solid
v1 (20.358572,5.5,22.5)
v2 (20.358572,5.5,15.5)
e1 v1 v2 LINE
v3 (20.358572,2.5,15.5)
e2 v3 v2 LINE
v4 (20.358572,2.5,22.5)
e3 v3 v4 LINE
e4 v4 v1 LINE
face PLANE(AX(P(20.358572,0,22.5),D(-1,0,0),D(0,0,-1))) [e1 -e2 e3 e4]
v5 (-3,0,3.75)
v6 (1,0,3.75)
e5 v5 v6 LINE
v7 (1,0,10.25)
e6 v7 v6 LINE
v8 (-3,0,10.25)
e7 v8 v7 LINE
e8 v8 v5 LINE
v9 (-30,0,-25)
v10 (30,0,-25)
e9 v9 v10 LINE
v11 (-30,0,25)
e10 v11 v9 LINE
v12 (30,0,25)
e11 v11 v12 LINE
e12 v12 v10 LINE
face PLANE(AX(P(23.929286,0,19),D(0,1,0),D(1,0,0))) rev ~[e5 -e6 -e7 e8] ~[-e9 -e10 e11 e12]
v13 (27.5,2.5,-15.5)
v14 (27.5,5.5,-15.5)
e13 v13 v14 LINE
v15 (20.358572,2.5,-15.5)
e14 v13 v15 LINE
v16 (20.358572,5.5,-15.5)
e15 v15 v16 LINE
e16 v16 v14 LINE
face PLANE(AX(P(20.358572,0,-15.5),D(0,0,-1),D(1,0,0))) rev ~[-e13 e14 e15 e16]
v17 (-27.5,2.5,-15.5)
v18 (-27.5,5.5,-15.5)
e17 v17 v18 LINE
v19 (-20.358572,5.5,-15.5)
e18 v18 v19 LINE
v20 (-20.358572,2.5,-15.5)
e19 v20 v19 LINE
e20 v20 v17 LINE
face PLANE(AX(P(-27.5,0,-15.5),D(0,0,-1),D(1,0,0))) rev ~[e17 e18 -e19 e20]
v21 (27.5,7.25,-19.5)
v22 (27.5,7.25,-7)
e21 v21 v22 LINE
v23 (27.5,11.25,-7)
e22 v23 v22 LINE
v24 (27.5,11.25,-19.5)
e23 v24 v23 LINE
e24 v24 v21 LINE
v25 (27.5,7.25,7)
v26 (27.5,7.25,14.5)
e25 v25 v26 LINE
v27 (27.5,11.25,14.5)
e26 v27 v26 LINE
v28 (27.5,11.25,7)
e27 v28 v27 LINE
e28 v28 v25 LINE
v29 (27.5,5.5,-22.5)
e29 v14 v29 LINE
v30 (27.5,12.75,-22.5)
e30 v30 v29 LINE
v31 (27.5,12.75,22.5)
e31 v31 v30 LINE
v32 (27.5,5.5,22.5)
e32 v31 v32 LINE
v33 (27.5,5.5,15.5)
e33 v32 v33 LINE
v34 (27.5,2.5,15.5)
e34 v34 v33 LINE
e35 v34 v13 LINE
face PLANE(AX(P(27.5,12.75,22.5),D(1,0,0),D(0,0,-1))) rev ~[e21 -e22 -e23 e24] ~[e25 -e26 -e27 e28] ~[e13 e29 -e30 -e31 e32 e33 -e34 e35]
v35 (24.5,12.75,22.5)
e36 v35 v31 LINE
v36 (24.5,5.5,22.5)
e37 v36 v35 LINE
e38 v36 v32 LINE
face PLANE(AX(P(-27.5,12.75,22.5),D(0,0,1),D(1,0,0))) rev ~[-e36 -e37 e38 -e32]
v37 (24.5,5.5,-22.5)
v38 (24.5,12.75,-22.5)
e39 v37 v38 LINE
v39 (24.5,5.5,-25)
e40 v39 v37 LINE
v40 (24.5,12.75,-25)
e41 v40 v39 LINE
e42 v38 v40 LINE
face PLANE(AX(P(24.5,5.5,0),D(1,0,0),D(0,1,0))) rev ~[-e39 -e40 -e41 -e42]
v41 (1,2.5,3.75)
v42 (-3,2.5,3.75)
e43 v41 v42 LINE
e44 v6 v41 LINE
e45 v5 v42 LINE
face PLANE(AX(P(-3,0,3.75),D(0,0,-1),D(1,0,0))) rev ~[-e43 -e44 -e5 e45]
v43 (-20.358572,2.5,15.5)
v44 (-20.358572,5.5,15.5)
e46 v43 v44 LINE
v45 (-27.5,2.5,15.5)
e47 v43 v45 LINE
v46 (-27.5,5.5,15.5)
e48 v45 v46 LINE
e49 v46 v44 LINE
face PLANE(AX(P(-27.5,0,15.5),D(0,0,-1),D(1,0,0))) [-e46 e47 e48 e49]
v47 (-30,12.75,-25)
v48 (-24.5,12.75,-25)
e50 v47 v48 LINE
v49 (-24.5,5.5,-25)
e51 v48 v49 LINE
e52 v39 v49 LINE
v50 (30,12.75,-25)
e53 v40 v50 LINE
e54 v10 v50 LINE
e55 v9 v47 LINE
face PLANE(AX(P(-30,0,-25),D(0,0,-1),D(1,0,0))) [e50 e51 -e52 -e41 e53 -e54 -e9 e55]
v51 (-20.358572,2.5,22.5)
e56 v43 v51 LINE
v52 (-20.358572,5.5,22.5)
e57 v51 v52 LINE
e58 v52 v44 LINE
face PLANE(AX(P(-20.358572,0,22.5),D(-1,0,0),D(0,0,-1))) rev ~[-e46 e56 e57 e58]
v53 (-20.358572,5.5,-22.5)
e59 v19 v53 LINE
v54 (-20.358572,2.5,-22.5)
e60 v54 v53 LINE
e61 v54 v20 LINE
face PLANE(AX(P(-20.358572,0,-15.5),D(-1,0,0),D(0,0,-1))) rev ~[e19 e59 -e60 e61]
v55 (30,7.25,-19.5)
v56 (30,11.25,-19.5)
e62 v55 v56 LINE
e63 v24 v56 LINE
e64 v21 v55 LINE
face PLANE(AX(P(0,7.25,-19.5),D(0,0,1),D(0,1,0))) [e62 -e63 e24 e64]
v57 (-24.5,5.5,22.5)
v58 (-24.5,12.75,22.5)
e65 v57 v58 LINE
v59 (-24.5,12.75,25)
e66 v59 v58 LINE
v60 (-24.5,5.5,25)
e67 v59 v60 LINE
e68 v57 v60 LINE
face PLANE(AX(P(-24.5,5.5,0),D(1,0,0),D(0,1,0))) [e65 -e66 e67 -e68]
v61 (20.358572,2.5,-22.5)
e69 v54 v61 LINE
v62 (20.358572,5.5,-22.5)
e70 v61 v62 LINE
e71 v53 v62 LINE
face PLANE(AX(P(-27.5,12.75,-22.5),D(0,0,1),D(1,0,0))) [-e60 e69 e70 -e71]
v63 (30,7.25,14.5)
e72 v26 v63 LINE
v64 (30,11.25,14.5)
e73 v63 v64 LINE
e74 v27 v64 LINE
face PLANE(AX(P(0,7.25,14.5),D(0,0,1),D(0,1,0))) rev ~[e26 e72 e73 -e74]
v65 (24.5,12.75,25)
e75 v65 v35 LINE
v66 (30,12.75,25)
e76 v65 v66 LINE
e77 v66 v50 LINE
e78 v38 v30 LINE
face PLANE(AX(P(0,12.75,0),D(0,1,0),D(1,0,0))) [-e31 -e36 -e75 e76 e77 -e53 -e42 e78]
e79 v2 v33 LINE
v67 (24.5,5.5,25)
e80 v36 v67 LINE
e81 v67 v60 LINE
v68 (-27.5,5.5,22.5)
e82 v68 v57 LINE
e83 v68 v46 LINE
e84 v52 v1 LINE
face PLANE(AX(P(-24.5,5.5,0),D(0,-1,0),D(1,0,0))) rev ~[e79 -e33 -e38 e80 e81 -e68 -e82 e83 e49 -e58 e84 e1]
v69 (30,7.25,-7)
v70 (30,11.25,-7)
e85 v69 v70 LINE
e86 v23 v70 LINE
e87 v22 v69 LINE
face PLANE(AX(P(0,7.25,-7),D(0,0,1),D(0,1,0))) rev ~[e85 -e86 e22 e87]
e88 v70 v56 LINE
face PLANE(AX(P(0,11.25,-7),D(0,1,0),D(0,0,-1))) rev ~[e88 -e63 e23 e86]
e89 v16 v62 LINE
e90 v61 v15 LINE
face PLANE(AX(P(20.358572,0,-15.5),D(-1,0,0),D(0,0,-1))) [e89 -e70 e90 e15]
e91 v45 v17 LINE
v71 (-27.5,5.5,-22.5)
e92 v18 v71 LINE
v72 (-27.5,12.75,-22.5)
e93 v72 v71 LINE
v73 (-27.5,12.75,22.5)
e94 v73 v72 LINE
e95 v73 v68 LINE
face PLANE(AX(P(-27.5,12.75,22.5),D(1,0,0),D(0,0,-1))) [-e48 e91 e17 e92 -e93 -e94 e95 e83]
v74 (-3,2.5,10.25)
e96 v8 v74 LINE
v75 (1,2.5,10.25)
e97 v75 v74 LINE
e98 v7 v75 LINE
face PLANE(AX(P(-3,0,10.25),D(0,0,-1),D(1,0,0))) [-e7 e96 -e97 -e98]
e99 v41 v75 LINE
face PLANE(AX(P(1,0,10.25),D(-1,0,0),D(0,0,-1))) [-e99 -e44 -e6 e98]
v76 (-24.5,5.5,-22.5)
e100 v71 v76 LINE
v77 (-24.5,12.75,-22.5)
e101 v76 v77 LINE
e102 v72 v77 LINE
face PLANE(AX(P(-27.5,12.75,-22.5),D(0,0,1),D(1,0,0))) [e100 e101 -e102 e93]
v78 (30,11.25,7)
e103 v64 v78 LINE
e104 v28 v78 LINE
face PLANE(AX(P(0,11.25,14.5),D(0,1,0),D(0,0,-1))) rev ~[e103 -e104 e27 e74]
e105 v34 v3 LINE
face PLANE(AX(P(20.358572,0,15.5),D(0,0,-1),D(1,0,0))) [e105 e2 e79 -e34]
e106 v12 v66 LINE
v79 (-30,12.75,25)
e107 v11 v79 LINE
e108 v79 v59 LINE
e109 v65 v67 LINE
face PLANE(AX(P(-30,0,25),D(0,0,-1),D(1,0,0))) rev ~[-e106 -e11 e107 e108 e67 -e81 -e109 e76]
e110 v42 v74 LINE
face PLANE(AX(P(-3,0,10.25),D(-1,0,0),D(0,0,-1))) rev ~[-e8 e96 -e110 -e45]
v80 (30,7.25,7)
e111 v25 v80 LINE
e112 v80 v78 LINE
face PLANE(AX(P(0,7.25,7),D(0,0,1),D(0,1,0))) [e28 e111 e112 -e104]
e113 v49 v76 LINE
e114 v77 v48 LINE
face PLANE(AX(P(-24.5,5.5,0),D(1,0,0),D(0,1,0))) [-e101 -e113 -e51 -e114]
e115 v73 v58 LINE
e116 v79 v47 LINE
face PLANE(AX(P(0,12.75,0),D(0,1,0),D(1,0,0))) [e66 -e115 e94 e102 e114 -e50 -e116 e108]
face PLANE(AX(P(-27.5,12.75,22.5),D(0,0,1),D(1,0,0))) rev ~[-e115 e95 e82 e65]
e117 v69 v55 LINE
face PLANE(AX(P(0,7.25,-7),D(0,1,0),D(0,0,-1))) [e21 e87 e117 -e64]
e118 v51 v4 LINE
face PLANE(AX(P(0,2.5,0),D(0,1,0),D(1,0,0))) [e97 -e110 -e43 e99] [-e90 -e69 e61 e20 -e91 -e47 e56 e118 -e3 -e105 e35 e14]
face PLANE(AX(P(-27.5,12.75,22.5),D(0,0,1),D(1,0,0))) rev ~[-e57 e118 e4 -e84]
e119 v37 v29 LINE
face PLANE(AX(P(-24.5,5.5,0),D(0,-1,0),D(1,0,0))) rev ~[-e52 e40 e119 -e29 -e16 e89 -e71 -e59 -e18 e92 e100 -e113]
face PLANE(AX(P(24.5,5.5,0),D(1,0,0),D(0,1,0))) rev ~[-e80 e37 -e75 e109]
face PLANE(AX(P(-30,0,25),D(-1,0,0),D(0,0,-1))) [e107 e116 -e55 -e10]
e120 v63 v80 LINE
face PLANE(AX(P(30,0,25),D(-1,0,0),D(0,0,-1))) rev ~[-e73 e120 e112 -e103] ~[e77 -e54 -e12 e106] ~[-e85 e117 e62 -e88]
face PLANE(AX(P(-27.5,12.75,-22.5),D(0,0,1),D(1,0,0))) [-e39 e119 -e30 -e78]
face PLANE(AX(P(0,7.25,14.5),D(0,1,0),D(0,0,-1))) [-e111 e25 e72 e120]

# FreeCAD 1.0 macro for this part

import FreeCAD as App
import Part
import Sketcher
from FreeCAD import Vector
Q = App.Units.Quantity

doc = App.newDocument("Part")
params = doc.addObject("Spreadsheet::Sheet", "Params")
for row, (alias, value) in enumerate([
    ("sketch1_width", "60 mm"),
    ("sketch1_height", "50 mm"),
    ("pad1_length", "12.75 mm"),
    ("sketch2_width", "55 mm"),
    ("sketch2_height", "45 mm"),
    ("pocket1_length", "10.25 mm"),
    ("sketch3_width", "4 mm"),
    ("sketch3_height", "6.5 mm"),
    ("pocket2_length", "10.25 mm"),
    ("sketch4_width", "49 mm"),
    ("sketch4_height", "7.25 mm"),
    ("pocket3_length", "90.25 mm"),
    ("sketch5_width", "4 mm"),
    ("sketch5_height", "7.5 mm"),
    ("sketch5_height2", "12.5 mm"),
    ("pocket4_length", "60 mm"),
    ("sketch6_height", "7 mm"),
    ("pad2_length", "5.5 mm"),
], start=1):
    params.set(f"A{row}", alias)
    params.set(f"B{row}", "=" + value)
    params.setAlias(f"B{row}", alias)

body = doc.addObject("PartDesign::Body", "Body")

# Sketch on XZ plane
sketch1 = body.newObject("Sketcher::SketchObject", "Sketch")
sketch1.AttachmentSupport = (doc.getObject("XZ_Plane"), [""])
sketch1.MapMode = "FlatFace"
sketch1.addGeometry(Part.LineSegment(Vector(-30, -25, 0), Vector(-30, 25, 0)), False)
sketch1.addGeometry(Part.LineSegment(Vector(-30, 25, 0), Vector(30, 25, 0)), False)
sketch1.addGeometry(Part.LineSegment(Vector(30, 25, 0), Vector(30, -25, 0)), False)
sketch1.addGeometry(Part.LineSegment(Vector(30, -25, 0), Vector(-30, -25, 0)), False)
sketch1.addConstraint(Sketcher.Constraint("Coincident", 0, 2, 1, 1))
sketch1.addConstraint(Sketcher.Constraint("Coincident", 1, 2, 2, 1))
sketch1.addConstraint(Sketcher.Constraint("Coincident", 2, 2, 3, 1))
sketch1.addConstraint(Sketcher.Constraint("Coincident", 3, 2, 0, 1))
sketch1.addConstraint(Sketcher.Constraint("Vertical", 0))
sketch1.addConstraint(Sketcher.Constraint("Horizontal", 1))
sketch1.addConstraint(Sketcher.Constraint("Vertical", 2))
sketch1.addConstraint(Sketcher.Constraint("Horizontal", 3))
sketch1.addConstraint(Sketcher.Constraint("Symmetric", 0, 2, 2, 2, -1, 1))
sketch1.addConstraint(Sketcher.Constraint("DistanceX", 1, 1, 1, 2, Q("60 mm")))
sketch1.addConstraint(Sketcher.Constraint("DistanceY", 0, 1, 0, 2, Q("50 mm")))
sketch1.setExpression("Constraints[9]", "Params.sketch1_width")
sketch1.setExpression("Constraints[10]", "Params.sketch1_height")
pad1 = body.newObject("PartDesign::Pad", "Pad")
pad1.Profile = sketch1
pad1.setExpression("Length", "Params.pad1_length")
pad1.Reversed = True

# Sketch on XZ plane
sketch2 = body.newObject("Sketcher::SketchObject", "Sketch001")
sketch2.AttachmentSupport = (doc.getObject("XZ_Plane"), [""])
sketch2.MapMode = "FlatFace"
sketch2.AttachmentOffset = App.Placement(Vector(0, 0, -12.75), App.Rotation())
sketch2.addGeometry(Part.LineSegment(Vector(-27.5, -22.5, 0), Vector(-27.5, 22.5, 0)), False)
sketch2.addGeometry(Part.LineSegment(Vector(-27.5, 22.5, 0), Vector(27.5, 22.5, 0)), False)
sketch2.addGeometry(Part.LineSegment(Vector(27.5, 22.5, 0), Vector(27.5, -22.5, 0)), False)
sketch2.addGeometry(Part.LineSegment(Vector(27.5, -22.5, 0), Vector(-27.5, -22.5, 0)), False)
sketch2.addConstraint(Sketcher.Constraint("Coincident", 0, 2, 1, 1))
sketch2.addConstraint(Sketcher.Constraint("Coincident", 1, 2, 2, 1))
sketch2.addConstraint(Sketcher.Constraint("Coincident", 2, 2, 3, 1))
sketch2.addConstraint(Sketcher.Constraint("Coincident", 3, 2, 0, 1))
sketch2.addConstraint(Sketcher.Constraint("Vertical", 0))
sketch2.addConstraint(Sketcher.Constraint("Horizontal", 1))
sketch2.addConstraint(Sketcher.Constraint("Vertical", 2))
sketch2.addConstraint(Sketcher.Constraint("Horizontal", 3))
sketch2.addConstraint(Sketcher.Constraint("Symmetric", 0, 2, 2, 2, -1, 1))
sketch2.addConstraint(Sketcher.Constraint("DistanceX", 1, 1, 1, 2, Q("55 mm")))
sketch2.addConstraint(Sketcher.Constraint("DistanceY", 0, 1, 0, 2, Q("45 mm")))
sketch2.setExpression("Constraints[9]", "Params.sketch2_width")
sketch2.setExpression("Constraints[10]", "Params.sketch2_height")
pocket1 = body.newObject("PartDesign::Pocket", "Pocket")
pocket1.Profile = sketch2
pocket1.setExpression("Length", "Params.pocket1_length")
pocket1.Reversed = True

# Sketch on XZ plane
sketch3 = body.newObject("Sketcher::SketchObject", "Sketch002")
sketch3.AttachmentSupport = (doc.getObject("XZ_Plane"), [""])
sketch3.MapMode = "FlatFace"
sketch3.addGeometry(Part.LineSegment(Vector(-3, 3.75, 0), Vector(-3, 10.25, 0)), False)
sketch3.addGeometry(Part.LineSegment(Vector(-3, 10.25, 0), Vector(1, 10.25, 0)), False)
sketch3.addGeometry(Part.LineSegment(Vector(1, 10.25, 0), Vector(1, 3.75, 0)), False)
sketch3.addGeometry(Part.LineSegment(Vector(1, 3.75, 0), Vector(-3, 3.75, 0)), False)
sketch3.addConstraint(Sketcher.Constraint("Coincident", 0, 2, 1, 1))
sketch3.addConstraint(Sketcher.Constraint("Coincident", 1, 2, 2, 1))
sketch3.addConstraint(Sketcher.Constraint("Coincident", 2, 2, 3, 1))
sketch3.addConstraint(Sketcher.Constraint("Coincident", 3, 2, 0, 1))
sketch3.addConstraint(Sketcher.Constraint("Vertical", 0))
sketch3.addConstraint(Sketcher.Constraint("Horizontal", 1))
sketch3.addConstraint(Sketcher.Constraint("Vertical", 2))
sketch3.addConstraint(Sketcher.Constraint("Horizontal", 3))
sketch3.addConstraint(Sketcher.Constraint("DistanceX", 1, 1, 1, 2, Q("4 mm")))
sketch3.addConstraint(Sketcher.Constraint("DistanceY", 0, 1, 0, 2, Q("6.5 mm")))
sketch3.addConstraint(Sketcher.Constraint("DistanceX", 0, 2, -1, 1, Q("3 mm")))
sketch3.addConstraint(Sketcher.Constraint("DistanceY", -1, 1, 0, 2, Q("10.25 mm")))
sketch3.setExpression("Constraints[8]", "Params.sketch3_width")
sketch3.setExpression("Constraints[9]", "Params.sketch3_height")
pocket2 = body.newObject("PartDesign::Pocket", "Pocket001")
pocket2.Profile = sketch3
pocket2.setExpression("Length", "Params.pocket2_length")

# Sketch on XY plane
sketch4 = body.newObject("Sketcher::SketchObject", "Sketch003")
sketch4.AttachmentSupport = (doc.getObject("XY_Plane"), [""])
sketch4.MapMode = "FlatFace"
sketch4.addGeometry(Part.LineSegment(Vector(-24.5, 12.75, 0), Vector(-24.5, 5.5, 0)), False)
sketch4.addGeometry(Part.LineSegment(Vector(-24.5, 5.5, 0), Vector(24.5, 5.5, 0)), False)
sketch4.addGeometry(Part.LineSegment(Vector(24.5, 5.5, 0), Vector(24.5, 12.75, 0)), False)
sketch4.addGeometry(Part.LineSegment(Vector(24.5, 12.75, 0), Vector(-24.5, 12.75, 0)), False)
sketch4.addConstraint(Sketcher.Constraint("Coincident", 0, 2, 1, 1))
sketch4.addConstraint(Sketcher.Constraint("Coincident", 1, 2, 2, 1))
sketch4.addConstraint(Sketcher.Constraint("Coincident", 2, 2, 3, 1))
sketch4.addConstraint(Sketcher.Constraint("Coincident", 3, 2, 0, 1))
sketch4.addConstraint(Sketcher.Constraint("Vertical", 0))
sketch4.addConstraint(Sketcher.Constraint("Horizontal", 1))
sketch4.addConstraint(Sketcher.Constraint("Vertical", 2))
sketch4.addConstraint(Sketcher.Constraint("Horizontal", 3))
sketch4.addConstraint(Sketcher.Constraint("DistanceX", 1, 1, 1, 2, Q("49 mm")))
sketch4.addConstraint(Sketcher.Constraint("DistanceY", 0, 2, 0, 1, Q("7.25 mm")))
sketch4.addConstraint(Sketcher.Constraint("DistanceX", 0, 2, -1, 1, Q("24.5 mm")))
sketch4.addConstraint(Sketcher.Constraint("DistanceY", -1, 1, 0, 2, Q("5.5 mm")))
sketch4.setExpression("Constraints[8]", "Params.sketch4_width")
sketch4.setExpression("Constraints[9]", "Params.sketch4_height")
pocket3 = body.newObject("PartDesign::Pocket", "Pocket002")
pocket3.Profile = sketch4
pocket3.setExpression("Length", "Params.pocket3_length")
pocket3.Midplane = True

# Sketch on YZ plane
sketch5 = body.newObject("Sketcher::SketchObject", "Sketch004")
sketch5.AttachmentSupport = (doc.getObject("YZ_Plane"), [""])
sketch5.MapMode = "FlatFace"
sketch5.addGeometry(Part.LineSegment(Vector(11.25, 14.5, 0), Vector(7.25, 14.5, 0)), False)
sketch5.addGeometry(Part.LineSegment(Vector(7.25, 14.5, 0), Vector(7.25, 7, 0)), False)
sketch5.addGeometry(Part.LineSegment(Vector(7.25, 7, 0), Vector(11.25, 7, 0)), False)
sketch5.addGeometry(Part.LineSegment(Vector(11.25, 7, 0), Vector(11.25, 14.5, 0)), False)
sketch5.addGeometry(Part.LineSegment(Vector(11.25, -7, 0), Vector(7.25, -7, 0)), False)
sketch5.addGeometry(Part.LineSegment(Vector(7.25, -7, 0), Vector(7.25, -19.5, 0)), False)
sketch5.addGeometry(Part.LineSegment(Vector(7.25, -19.5, 0), Vector(11.25, -19.5, 0)), False)
sketch5.addGeometry(Part.LineSegment(Vector(11.25, -19.5, 0), Vector(11.25, -7, 0)), False)
sketch5.addConstraint(Sketcher.Constraint("Coincident", 0, 2, 1, 1))
sketch5.addConstraint(Sketcher.Constraint("Coincident", 1, 2, 2, 1))
sketch5.addConstraint(Sketcher.Constraint("Coincident", 2, 2, 3, 1))
sketch5.addConstraint(Sketcher.Constraint("Coincident", 3, 2, 0, 1))
sketch5.addConstraint(Sketcher.Constraint("Coincident", 4, 2, 5, 1))
sketch5.addConstraint(Sketcher.Constraint("Coincident", 5, 2, 6, 1))
sketch5.addConstraint(Sketcher.Constraint("Coincident", 6, 2, 7, 1))
sketch5.addConstraint(Sketcher.Constraint("Coincident", 7, 2, 4, 1))
sketch5.addConstraint(Sketcher.Constraint("Horizontal", 0))
sketch5.addConstraint(Sketcher.Constraint("Vertical", 1))
sketch5.addConstraint(Sketcher.Constraint("Horizontal", 2))
sketch5.addConstraint(Sketcher.Constraint("Vertical", 3))
sketch5.addConstraint(Sketcher.Constraint("Horizontal", 4))
sketch5.addConstraint(Sketcher.Constraint("Vertical", 5))
sketch5.addConstraint(Sketcher.Constraint("Horizontal", 6))
sketch5.addConstraint(Sketcher.Constraint("Vertical", 7))
sketch5.addConstraint(Sketcher.Constraint("Symmetric", 1, 2, 4, 2, -1))
sketch5.addConstraint(Sketcher.Constraint("Vertical", 3, 2, 6, 2))
sketch5.addConstraint(Sketcher.Constraint("DistanceX", 0, 2, 0, 1, Q("4 mm")))
sketch5.addConstraint(Sketcher.Constraint("DistanceY", 1, 2, 1, 1, Q("7.5 mm")))
sketch5.addConstraint(Sketcher.Constraint("DistanceY", 5, 2, 5, 1, Q("12.5 mm")))
sketch5.addConstraint(Sketcher.Constraint("DistanceY", -1, 1, 1, 2, Q("7 mm")))
sketch5.addConstraint(Sketcher.Constraint("DistanceX", -1, 1, 0, 2, Q("7.25 mm")))
sketch5.setExpression("Constraints[18]", "Params.sketch5_width")
sketch5.setExpression("Constraints[19]", "Params.sketch5_height")
sketch5.setExpression("Constraints[20]", "Params.sketch5_height2")
pocket4 = body.newObject("PartDesign::Pocket", "Pocket003")
pocket4.Profile = sketch5
pocket4.setExpression("Length", "Params.pocket4_length")
pocket4.Reversed = True

# Sketch on XZ plane
sketch6 = body.newObject("Sketcher::SketchObject", "Sketch005")
sketch6.AttachmentSupport = (doc.getObject("XZ_Plane"), [""])
sketch6.MapMode = "FlatFace"
sketch6.addGeometry(Part.LineSegment(Vector(20.358572, 15.5, 0), Vector(20.358572, 22.5, 0)), False)
sketch6.addGeometry(Part.LineSegment(Vector(20.358572, 22.5, 0), Vector(27.5, 22.5, 0)), False)
sketch6.addGeometry(Part.LineSegment(Vector(27.5, 22.5, 0), Vector(27.5, 15.5, 0)), False)
sketch6.addGeometry(Part.LineSegment(Vector(27.5, 15.5, 0), Vector(20.358572, 15.5, 0)), False)
sketch6.addGeometry(Part.LineSegment(Vector(-27.5, 15.5, 0), Vector(-27.5, 22.5, 0)), False)
sketch6.addGeometry(Part.LineSegment(Vector(-27.5, 22.5, 0), Vector(-20.358572, 22.5, 0)), False)
sketch6.addGeometry(Part.LineSegment(Vector(-20.358572, 22.5, 0), Vector(-20.358572, 15.5, 0)), False)
sketch6.addGeometry(Part.LineSegment(Vector(-20.358572, 15.5, 0), Vector(-27.5, 15.5, 0)), False)
sketch6.addGeometry(Part.LineSegment(Vector(20.358572, -22.5, 0), Vector(20.358572, -15.5, 0)), False)
sketch6.addGeometry(Part.LineSegment(Vector(20.358572, -15.5, 0), Vector(27.5, -15.5, 0)), False)
sketch6.addGeometry(Part.LineSegment(Vector(27.5, -15.5, 0), Vector(27.5, -22.5, 0)), False)
sketch6.addGeometry(Part.LineSegment(Vector(27.5, -22.5, 0), Vector(20.358572, -22.5, 0)), False)
sketch6.addGeometry(Part.LineSegment(Vector(-27.5, -22.5, 0), Vector(-27.5, -15.5, 0)), False)
sketch6.addGeometry(Part.LineSegment(Vector(-27.5, -15.5, 0), Vector(-20.358572, -15.5, 0)), False)
sketch6.addGeometry(Part.LineSegment(Vector(-20.358572, -15.5, 0), Vector(-20.358572, -22.5, 0)), False)
sketch6.addGeometry(Part.LineSegment(Vector(-20.358572, -22.5, 0), Vector(-27.5, -22.5, 0)), False)
sketch6.addConstraint(Sketcher.Constraint("Coincident", 0, 2, 1, 1))
sketch6.addConstraint(Sketcher.Constraint("Coincident", 1, 2, 2, 1))
sketch6.addConstraint(Sketcher.Constraint("Coincident", 2, 2, 3, 1))
sketch6.addConstraint(Sketcher.Constraint("Coincident", 3, 2, 0, 1))
sketch6.addConstraint(Sketcher.Constraint("Coincident", 4, 2, 5, 1))
sketch6.addConstraint(Sketcher.Constraint("Coincident", 5, 2, 6, 1))
sketch6.addConstraint(Sketcher.Constraint("Coincident", 6, 2, 7, 1))
sketch6.addConstraint(Sketcher.Constraint("Coincident", 7, 2, 4, 1))
sketch6.addConstraint(Sketcher.Constraint("Coincident", 8, 2, 9, 1))
sketch6.addConstraint(Sketcher.Constraint("Coincident", 9, 2, 10, 1))
sketch6.addConstraint(Sketcher.Constraint("Coincident", 10, 2, 11, 1))
sketch6.addConstraint(Sketcher.Constraint("Coincident", 11, 2, 8, 1))
sketch6.addConstraint(Sketcher.Constraint("Coincident", 12, 2, 13, 1))
sketch6.addConstraint(Sketcher.Constraint("Coincident", 13, 2, 14, 1))
sketch6.addConstraint(Sketcher.Constraint("Coincident", 14, 2, 15, 1))
sketch6.addConstraint(Sketcher.Constraint("Coincident", 15, 2, 12, 1))
sketch6.addConstraint(Sketcher.Constraint("Vertical", 0))
sketch6.addConstraint(Sketcher.Constraint("Horizontal", 1))
sketch6.addConstraint(Sketcher.Constraint("Vertical", 2))
sketch6.addConstraint(Sketcher.Constraint("Horizontal", 3))
sketch6.addConstraint(Sketcher.Constraint("Vertical", 4))
sketch6.addConstraint(Sketcher.Constraint("Horizontal", 5))
sketch6.addConstraint(Sketcher.Constraint("Vertical", 6))
sketch6.addConstraint(Sketcher.Constraint("Horizontal", 7))
sketch6.addConstraint(Sketcher.Constraint("Vertical", 8))
sketch6.addConstraint(Sketcher.Constraint("Horizontal", 9))
sketch6.addConstraint(Sketcher.Constraint("Vertical", 10))
sketch6.addConstraint(Sketcher.Constraint("Horizontal", 11))
sketch6.addConstraint(Sketcher.Constraint("Vertical", 12))
sketch6.addConstraint(Sketcher.Constraint("Horizontal", 13))
sketch6.addConstraint(Sketcher.Constraint("Vertical", 14))
sketch6.addConstraint(Sketcher.Constraint("Horizontal", 15))
sketch6.addConstraint(Sketcher.Constraint("Symmetric", 6, 2, 8, 2, -1, 1))
sketch6.addConstraint(Sketcher.Constraint("Symmetric", 4, 2, 10, 2, -1, 1))
sketch6.addConstraint(Sketcher.Constraint("Symmetric", 2, 2, 12, 2, -1, 1))
sketch6.addConstraint(Sketcher.Constraint("Symmetric", 0, 2, 14, 2, -1, 1))
sketch6.addConstraint(Sketcher.Constraint("Symmetric", 1, 2, 4, 2, -2))
sketch6.addConstraint(Sketcher.Constraint("Symmetric", 3, 2, 6, 2, -2))
sketch6.addConstraint(Sketcher.Constraint("DistanceY", 0, 1, 0, 2, Q("7 mm")))
sketch6.addConstraint(Sketcher.Constraint("DistanceX", 4, 2, 1, 2, Q("55 mm")))
sketch6.addConstraint(Sketcher.Constraint("DistanceY", 8, 2, 3, 2, Q("31 mm")))
sketch6.addConstraint(Sketcher.Constraint("DistanceX", 1, 1, 1, 2, Q("7.141428 mm")))
sketch6.setExpression("Constraints[38]", "Params.sketch6_height")
pad2 = body.newObject("PartDesign::Pad", "Pad001")
pad2.Profile = sketch6
pad2.setExpression("Length", "Params.pad2_length")
pad2.Reversed = True

doc.recompute()
